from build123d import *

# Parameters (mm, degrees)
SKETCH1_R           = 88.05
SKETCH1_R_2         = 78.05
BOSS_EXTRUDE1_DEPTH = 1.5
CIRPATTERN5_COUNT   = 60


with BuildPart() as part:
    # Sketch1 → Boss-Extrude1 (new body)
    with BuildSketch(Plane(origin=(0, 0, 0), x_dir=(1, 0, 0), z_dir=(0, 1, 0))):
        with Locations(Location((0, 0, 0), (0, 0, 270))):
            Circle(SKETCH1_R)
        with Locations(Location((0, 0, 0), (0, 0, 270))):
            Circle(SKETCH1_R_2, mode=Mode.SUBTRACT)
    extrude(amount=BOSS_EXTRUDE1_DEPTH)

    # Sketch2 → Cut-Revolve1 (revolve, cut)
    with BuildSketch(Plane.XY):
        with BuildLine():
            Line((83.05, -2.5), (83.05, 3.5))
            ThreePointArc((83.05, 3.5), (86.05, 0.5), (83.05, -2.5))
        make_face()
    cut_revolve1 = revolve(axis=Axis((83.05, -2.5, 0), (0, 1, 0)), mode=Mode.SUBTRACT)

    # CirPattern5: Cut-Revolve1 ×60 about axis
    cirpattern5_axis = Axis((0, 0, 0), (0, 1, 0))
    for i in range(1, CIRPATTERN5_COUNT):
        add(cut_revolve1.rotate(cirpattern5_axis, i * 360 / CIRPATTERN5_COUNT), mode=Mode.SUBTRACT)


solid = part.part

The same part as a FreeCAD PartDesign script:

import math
import FreeCAD as App
import Part
import Sketcher

V = App.Vector
Q = App.Units.Quantity

doc = App.newDocument("Part")
body = doc.addObject("PartDesign::Body", "Body")

# Sketch on XZ plane
sketch1 = body.newObject("Sketcher::SketchObject", "Sketch")
sketch1.AttachmentSupport = (doc.getObject("XZ_Plane"), [""])
sketch1.MapMode = "FlatFace"
sketch1.addGeometry(Part.Circle(V(0, 0, 0), V(0, 0, 1), 88), False)
sketch1.addGeometry(Part.Circle(V(0, 0, 0), V(0, 0, 1), 78), False)
sketch1.addConstraint(Sketcher.Constraint("Coincident", 0, 3, -1, 1))
sketch1.addConstraint(Sketcher.Constraint("Coincident", 1, 3, -1, 1))
sketch1.addConstraint(Sketcher.Constraint("Diameter", 0, Q("176.1 mm")))
sketch1.addConstraint(Sketcher.Constraint("Diameter", 1, Q("156.1 mm")))
pad1 = body.newObject("PartDesign::Pad", "Pad")
pad1.Profile = sketch1
pad1.Length = 1.5
pad1.Reversed = True

# Sketch on XY plane
sketch2 = body.newObject("Sketcher::SketchObject", "Sketch001")
sketch2.AttachmentSupport = (doc.getObject("XY_Plane"), [""])
sketch2.MapMode = "FlatFace"
sketch2.addGeometry(Part.LineSegment(V(83, 3.5, 0), V(83, -2.5, 0)), False)
sketch2.addGeometry(Part.ArcOfCircle(Part.Circle(V(83, 0.5, 0), V(0, 0, 1), 3), math.radians(-90), math.radians(90)), False)
sketch2.addGeometry(Part.LineSegment(V(83, -2.5, 0), V(83, 3.5, 0)), True)  # axis
sketch2.addConstraint(Sketcher.Constraint("Coincident", 0, 1, 1, 2))
sketch2.addConstraint(Sketcher.Constraint("Coincident", 1, 1, 0, 2))
sketch2.addConstraint(Sketcher.Constraint("Vertical", 0))
sketch2.addConstraint(Sketcher.Constraint("Vertical", 2))
sketch2.addConstraint(Sketcher.Constraint("Coincident", 2, 1, 1, 1))
sketch2.addConstraint(Sketcher.Constraint("Vertical", 1, 3, 0, 1))
sketch2.addConstraint(Sketcher.Constraint("Equal", 0, 2))
sketch2.addConstraint(Sketcher.Constraint("Radius", 1, Q("3 mm")))
sketch2.addConstraint(Sketcher.Constraint("DistanceY", -1, 1, 1, 3, Q("0.5 mm")))
sketch2.addConstraint(Sketcher.Constraint("DistanceX", -1, 1, 1, 3, Q("83.05 mm")))
groove = body.newObject("PartDesign::Groove", "Groove")
groove.Profile = sketch2
groove.ReferenceAxis = (sketch2, ["Axis0"])
groove.Angle = 360
doc.recompute()

polarpattern = body.newObject("PartDesign::PolarPattern", "PolarPattern")
polarpattern.Originals = [groove]
polarpattern.Axis = (doc.getObject("Y_Axis"), [""])
polarpattern.Angle = 360
polarpattern.Occurrences = 60
body.Tip = polarpattern

doc.recompute()
